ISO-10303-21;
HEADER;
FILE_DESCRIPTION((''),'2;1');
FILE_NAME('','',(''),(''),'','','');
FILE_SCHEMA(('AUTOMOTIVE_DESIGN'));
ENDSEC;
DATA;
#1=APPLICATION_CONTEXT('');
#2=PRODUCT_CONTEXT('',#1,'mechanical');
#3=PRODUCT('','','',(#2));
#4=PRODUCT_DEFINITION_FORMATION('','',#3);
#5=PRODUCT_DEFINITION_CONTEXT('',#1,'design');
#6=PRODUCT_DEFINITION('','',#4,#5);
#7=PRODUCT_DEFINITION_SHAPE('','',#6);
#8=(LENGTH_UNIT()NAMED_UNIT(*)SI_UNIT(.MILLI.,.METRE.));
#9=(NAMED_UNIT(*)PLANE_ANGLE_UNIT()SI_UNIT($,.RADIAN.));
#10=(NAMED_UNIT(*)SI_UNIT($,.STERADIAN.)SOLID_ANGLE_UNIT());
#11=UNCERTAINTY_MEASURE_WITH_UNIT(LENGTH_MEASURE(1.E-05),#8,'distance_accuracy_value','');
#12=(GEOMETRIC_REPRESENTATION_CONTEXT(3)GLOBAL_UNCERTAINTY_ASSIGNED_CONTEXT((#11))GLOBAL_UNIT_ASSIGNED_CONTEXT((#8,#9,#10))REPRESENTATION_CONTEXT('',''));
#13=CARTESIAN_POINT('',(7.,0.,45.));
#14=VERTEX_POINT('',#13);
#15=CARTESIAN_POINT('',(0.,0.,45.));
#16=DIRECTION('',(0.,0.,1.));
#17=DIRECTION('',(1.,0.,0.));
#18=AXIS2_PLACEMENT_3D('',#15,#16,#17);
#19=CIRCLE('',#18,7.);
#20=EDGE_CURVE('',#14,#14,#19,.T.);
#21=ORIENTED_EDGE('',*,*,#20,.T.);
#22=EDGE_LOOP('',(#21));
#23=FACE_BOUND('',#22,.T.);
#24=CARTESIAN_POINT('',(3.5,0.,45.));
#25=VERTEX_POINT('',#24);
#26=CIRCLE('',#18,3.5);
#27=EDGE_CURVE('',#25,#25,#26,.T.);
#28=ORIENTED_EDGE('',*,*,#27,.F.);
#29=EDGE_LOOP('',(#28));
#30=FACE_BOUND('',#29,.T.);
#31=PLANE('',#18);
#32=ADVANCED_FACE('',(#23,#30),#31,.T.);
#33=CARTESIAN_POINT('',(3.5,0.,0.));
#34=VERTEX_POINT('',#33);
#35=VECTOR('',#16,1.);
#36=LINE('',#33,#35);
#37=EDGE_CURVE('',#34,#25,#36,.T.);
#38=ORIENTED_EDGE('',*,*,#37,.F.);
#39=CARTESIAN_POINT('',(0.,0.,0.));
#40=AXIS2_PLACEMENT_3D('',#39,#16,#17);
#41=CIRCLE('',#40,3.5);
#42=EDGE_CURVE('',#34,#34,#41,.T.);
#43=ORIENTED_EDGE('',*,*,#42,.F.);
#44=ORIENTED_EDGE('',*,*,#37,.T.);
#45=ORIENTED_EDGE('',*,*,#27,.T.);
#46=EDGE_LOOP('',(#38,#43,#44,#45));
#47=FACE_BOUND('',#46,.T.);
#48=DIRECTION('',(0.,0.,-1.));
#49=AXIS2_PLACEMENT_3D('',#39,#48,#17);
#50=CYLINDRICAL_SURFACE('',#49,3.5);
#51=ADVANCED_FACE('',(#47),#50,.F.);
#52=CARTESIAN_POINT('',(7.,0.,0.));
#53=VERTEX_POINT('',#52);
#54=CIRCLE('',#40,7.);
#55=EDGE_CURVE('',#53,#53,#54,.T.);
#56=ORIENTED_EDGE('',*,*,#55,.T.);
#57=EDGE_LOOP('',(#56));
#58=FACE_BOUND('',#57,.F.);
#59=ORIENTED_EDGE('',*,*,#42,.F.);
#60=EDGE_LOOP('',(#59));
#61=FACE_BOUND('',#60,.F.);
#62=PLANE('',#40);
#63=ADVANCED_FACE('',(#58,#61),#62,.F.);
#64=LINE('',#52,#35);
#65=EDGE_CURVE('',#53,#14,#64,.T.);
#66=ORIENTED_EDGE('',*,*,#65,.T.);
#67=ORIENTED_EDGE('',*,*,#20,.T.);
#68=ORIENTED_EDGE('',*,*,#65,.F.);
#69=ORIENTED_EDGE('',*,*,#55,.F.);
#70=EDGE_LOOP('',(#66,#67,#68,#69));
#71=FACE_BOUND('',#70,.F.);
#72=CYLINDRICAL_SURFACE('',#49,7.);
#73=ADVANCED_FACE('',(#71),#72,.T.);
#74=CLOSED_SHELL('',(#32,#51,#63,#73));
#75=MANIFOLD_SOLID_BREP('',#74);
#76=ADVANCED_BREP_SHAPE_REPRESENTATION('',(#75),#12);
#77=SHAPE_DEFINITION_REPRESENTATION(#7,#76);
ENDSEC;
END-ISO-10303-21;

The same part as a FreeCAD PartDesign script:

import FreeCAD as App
import Part
import Sketcher

doc = App.newDocument("Part")
body = doc.addObject("PartDesign::Body", "Body")

sketch1 = body.newObject("Sketcher::SketchObject", "Sketch")
sketch1.AttachmentSupport = (doc.getObject("XY_Plane"), [""])
sketch1.MapMode = "FlatFace"
sketch1.addGeometry([
    Part.Circle(App.Vector(0, 0, 0), App.Vector(0, 0, 1), 7),
    Part.Circle(App.Vector(0, 0, 0), App.Vector(0, 0, 1), 3.5),
], False)
sketch1.addConstraint([
    Sketcher.Constraint("Coincident", 0, 3, -1, 1),
    Sketcher.Constraint("Coincident", 1, 3, -1, 1),
    Sketcher.Constraint("Diameter", 0, 14.0),
    Sketcher.Constraint("Diameter", 1, 7.0),
])
pad1 = body.newObject("PartDesign::Pad", "Pad")
pad1.Profile = sketch1
pad1.Length = 45

doc.recompute()
